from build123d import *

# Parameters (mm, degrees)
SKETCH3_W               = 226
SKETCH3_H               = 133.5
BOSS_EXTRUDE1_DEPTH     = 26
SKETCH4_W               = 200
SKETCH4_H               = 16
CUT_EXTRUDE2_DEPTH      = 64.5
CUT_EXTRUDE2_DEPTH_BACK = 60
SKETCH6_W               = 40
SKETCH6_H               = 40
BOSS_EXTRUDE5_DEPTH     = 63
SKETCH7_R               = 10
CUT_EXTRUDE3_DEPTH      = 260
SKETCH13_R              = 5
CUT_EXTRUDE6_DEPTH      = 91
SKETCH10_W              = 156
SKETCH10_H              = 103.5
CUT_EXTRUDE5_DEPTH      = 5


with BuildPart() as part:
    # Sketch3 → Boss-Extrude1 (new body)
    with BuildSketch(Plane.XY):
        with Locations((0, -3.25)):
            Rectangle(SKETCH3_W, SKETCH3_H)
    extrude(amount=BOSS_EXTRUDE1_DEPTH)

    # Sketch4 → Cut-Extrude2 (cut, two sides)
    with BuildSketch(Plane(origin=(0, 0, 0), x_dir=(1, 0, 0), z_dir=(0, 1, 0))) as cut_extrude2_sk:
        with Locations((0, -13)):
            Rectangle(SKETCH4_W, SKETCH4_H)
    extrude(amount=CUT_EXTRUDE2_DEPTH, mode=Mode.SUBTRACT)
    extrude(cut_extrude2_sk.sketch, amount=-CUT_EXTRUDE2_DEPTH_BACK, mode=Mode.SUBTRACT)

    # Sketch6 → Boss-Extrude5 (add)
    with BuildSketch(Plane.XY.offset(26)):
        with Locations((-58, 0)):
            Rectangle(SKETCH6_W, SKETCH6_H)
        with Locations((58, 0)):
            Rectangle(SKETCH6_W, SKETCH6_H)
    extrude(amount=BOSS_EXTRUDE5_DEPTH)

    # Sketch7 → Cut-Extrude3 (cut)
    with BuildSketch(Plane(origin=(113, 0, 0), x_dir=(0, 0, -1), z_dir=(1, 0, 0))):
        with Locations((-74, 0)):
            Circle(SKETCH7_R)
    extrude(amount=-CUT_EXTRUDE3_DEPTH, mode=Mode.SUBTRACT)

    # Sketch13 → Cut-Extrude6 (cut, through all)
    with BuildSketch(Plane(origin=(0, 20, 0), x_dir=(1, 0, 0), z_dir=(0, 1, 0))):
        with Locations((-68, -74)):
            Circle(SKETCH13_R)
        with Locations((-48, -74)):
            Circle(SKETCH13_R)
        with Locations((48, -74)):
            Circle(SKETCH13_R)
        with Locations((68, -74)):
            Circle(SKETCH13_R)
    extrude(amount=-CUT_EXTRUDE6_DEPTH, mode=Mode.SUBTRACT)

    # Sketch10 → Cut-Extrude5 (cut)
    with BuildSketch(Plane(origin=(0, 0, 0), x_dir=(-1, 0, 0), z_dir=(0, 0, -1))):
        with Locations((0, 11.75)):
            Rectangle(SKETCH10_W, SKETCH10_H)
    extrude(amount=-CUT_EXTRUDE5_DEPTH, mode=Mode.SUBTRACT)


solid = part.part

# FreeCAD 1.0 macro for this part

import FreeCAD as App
import Part
import Sketcher

doc = App.newDocument("Part")
params = doc.addObject("Spreadsheet::Sheet", "Params")
for row, (alias, value) in enumerate([
    ("sketch1_width", "226 mm"),
    ("sketch1_height", "133.5 mm"),
    ("pad1_length", "26 mm"),
    ("sketch2_width", "200 mm"),
    ("sketch2_height", "16 mm"),
    ("pocket1_length", "64.5 mm"),
    ("pocket1_length2", "60 mm"),
    ("sketch3_width", "40 mm"),
    ("pad2_length", "63 mm"),
    ("sketch4_diameter", "20 mm"),
    ("pocket2_length", "260 mm"),
    ("sketch5_diameter", "10 mm"),
    ("sketch6_width", "156 mm"),
    ("sketch6_height", "103.5 mm"),
    ("pocket4_length", "5 mm"),
], start=1):
    params.set(f"A{row}", alias)
    params.set(f"B{row}", "=" + value)
    params.setAlias(f"B{row}", alias)

body = doc.addObject("PartDesign::Body", "Body")

# Sketch on XY plane
sketch1 = doc.addObject("Sketcher::SketchObject", "Sketch")
body.addObject(sketch1)
sketch1.AttachmentSupport = (doc.XY_Plane, [""])
sketch1.MapMode = "FlatFace"
sketch1.addGeometry(Part.LineSegment(App.Vector(-113, 64, 0), App.Vector(-113, -70, 0)), False)
sketch1.addGeometry(Part.LineSegment(App.Vector(-113, -70, 0), App.Vector(113, -70, 0)), False)
sketch1.addGeometry(Part.LineSegment(App.Vector(113, -70, 0), App.Vector(113, 64, 0)), False)
sketch1.addGeometry(Part.LineSegment(App.Vector(113, 64, 0), App.Vector(-113, 64, 0)), False)
sketch1.addConstraint(Sketcher.Constraint("Coincident", 0, 2, 1, 1))
sketch1.addConstraint(Sketcher.Constraint("Coincident", 1, 2, 2, 1))
sketch1.addConstraint(Sketcher.Constraint("Coincident", 2, 2, 3, 1))
sketch1.addConstraint(Sketcher.Constraint("Coincident", 3, 2, 0, 1))
sketch1.addConstraint(Sketcher.Constraint("Vertical", 0))
sketch1.addConstraint(Sketcher.Constraint("Horizontal", 1))
sketch1.addConstraint(Sketcher.Constraint("Vertical", 2))
sketch1.addConstraint(Sketcher.Constraint("Horizontal", 3))
sketch1.addConstraint(Sketcher.Constraint("DistanceX", 1, 1, 1, 2, 226.0))
sketch1.addConstraint(Sketcher.Constraint("DistanceY", 0, 2, 0, 1, 133.5))
sketch1.addConstraint(Sketcher.Constraint("DistanceX", 0, 2, -1, 1, 113.0))
sketch1.addConstraint(Sketcher.Constraint("DistanceY", 0, 2, -1, 1, 70.0))
sketch1.setExpression("Constraints[8]", "Params.sketch1_width")
sketch1.setExpression("Constraints[9]", "Params.sketch1_height")
pad1 = doc.addObject("PartDesign::Pad", "Pad")
body.addObject(pad1)
pad1.Profile = sketch1
pad1.setExpression("Length", "Params.pad1_length")

# Sketch on XZ plane
sketch2 = doc.addObject("Sketcher::SketchObject", "Sketch001")
body.addObject(sketch2)
sketch2.AttachmentSupport = (doc.XZ_Plane, [""])
sketch2.MapMode = "FlatFace"
sketch2.addGeometry(Part.LineSegment(App.Vector(-100, 5, 0), App.Vector(-100, 21, 0)), False)
sketch2.addGeometry(Part.LineSegment(App.Vector(-100, 21, 0), App.Vector(100, 21, 0)), False)
sketch2.addGeometry(Part.LineSegment(App.Vector(100, 21, 0), App.Vector(100, 5, 0)), False)
sketch2.addGeometry(Part.LineSegment(App.Vector(100, 5, 0), App.Vector(-100, 5, 0)), False)
sketch2.addConstraint(Sketcher.Constraint("Coincident", 0, 2, 1, 1))
sketch2.addConstraint(Sketcher.Constraint("Coincident", 1, 2, 2, 1))
sketch2.addConstraint(Sketcher.Constraint("Coincident", 2, 2, 3, 1))
sketch2.addConstraint(Sketcher.Constraint("Coincident", 3, 2, 0, 1))
sketch2.addConstraint(Sketcher.Constraint("Vertical", 0))
sketch2.addConstraint(Sketcher.Constraint("Horizontal", 1))
sketch2.addConstraint(Sketcher.Constraint("Vertical", 2))
sketch2.addConstraint(Sketcher.Constraint("Horizontal", 3))
sketch2.addConstraint(Sketcher.Constraint("DistanceX", 1, 1, 1, 2, 200.0))
sketch2.addConstraint(Sketcher.Constraint("DistanceY", 0, 1, 0, 2, 16.0))
sketch2.addConstraint(Sketcher.Constraint("DistanceX", 0, 2, -1, 1, 100.0))
sketch2.addConstraint(Sketcher.Constraint("DistanceY", -1, 1, 0, 2, 21.0))
sketch2.setExpression("Constraints[8]", "Params.sketch2_width")
sketch2.setExpression("Constraints[9]", "Params.sketch2_height")
pocket1 = doc.addObject("PartDesign::Pocket", "Pocket")
body.addObject(pocket1)
pocket1.Profile = sketch2
pocket1.Type = "TwoLengths"
pocket1.setExpression("Length", "Params.pocket1_length")
pocket1.setExpression("Length2", "Params.pocket1_length2")

# Sketch on XY plane
sketch3 = doc.addObject("Sketcher::SketchObject", "Sketch002")
body.addObject(sketch3)
sketch3.AttachmentSupport = (doc.XY_Plane, [""])
sketch3.MapMode = "FlatFace"
sketch3.AttachmentOffset = App.Placement(App.Vector(0, 0, 26), App.Rotation())
sketch3.addGeometry(Part.LineSegment(App.Vector(-78, 20, 0), App.Vector(-78, -20, 0)), False)
sketch3.addGeometry(Part.LineSegment(App.Vector(-78, -20, 0), App.Vector(-38, -20, 0)), False)
sketch3.addGeometry(Part.LineSegment(App.Vector(-38, -20, 0), App.Vector(-38, 20, 0)), False)
sketch3.addGeometry(Part.LineSegment(App.Vector(-38, 20, 0), App.Vector(-78, 20, 0)), False)
sketch3.addGeometry(Part.LineSegment(App.Vector(38, 20, 0), App.Vector(38, -20, 0)), False)
sketch3.addGeometry(Part.LineSegment(App.Vector(38, -20, 0), App.Vector(78, -20, 0)), False)
sketch3.addGeometry(Part.LineSegment(App.Vector(78, -20, 0), App.Vector(78, 20, 0)), False)
sketch3.addGeometry(Part.LineSegment(App.Vector(78, 20, 0), App.Vector(38, 20, 0)), False)
sketch3.addConstraint(Sketcher.Constraint("Coincident", 0, 2, 1, 1))
sketch3.addConstraint(Sketcher.Constraint("Coincident", 1, 2, 2, 1))
sketch3.addConstraint(Sketcher.Constraint("Coincident", 2, 2, 3, 1))
sketch3.addConstraint(Sketcher.Constraint("Coincident", 3, 2, 0, 1))
sketch3.addConstraint(Sketcher.Constraint("Coincident", 4, 2, 5, 1))
sketch3.addConstraint(Sketcher.Constraint("Coincident", 5, 2, 6, 1))
sketch3.addConstraint(Sketcher.Constraint("Coincident", 6, 2, 7, 1))
sketch3.addConstraint(Sketcher.Constraint("Coincident", 7, 2, 4, 1))
sketch3.addConstraint(Sketcher.Constraint("Vertical", 0))
sketch3.addConstraint(Sketcher.Constraint("Horizontal", 1))
sketch3.addConstraint(Sketcher.Constraint("Vertical", 2))
sketch3.addConstraint(Sketcher.Constraint("Horizontal", 3))
sketch3.addConstraint(Sketcher.Constraint("Vertical", 4))
sketch3.addConstraint(Sketcher.Constraint("Horizontal", 5))
sketch3.addConstraint(Sketcher.Constraint("Vertical", 6))
sketch3.addConstraint(Sketcher.Constraint("Horizontal", 7))
sketch3.addConstraint(Sketcher.Constraint("Symmetric", 2, 2, 4, 2, -1, 1))
sketch3.addConstraint(Sketcher.Constraint("Symmetric", 0, 2, 6, 2, -1, 1))
sketch3.addConstraint(Sketcher.Constraint("Horizontal", 1, 2, 4, 2))
sketch3.addConstraint(Sketcher.Constraint("Equal", 7, 0))
sketch3.addConstraint(Sketcher.Constraint("DistanceX", 1, 1, 1, 2, 40.0))
sketch3.addConstraint(Sketcher.Constraint("DistanceX", 0, 2, -1, 1, 78.0))
sketch3.setExpression("Constraints[20]", "Params.sketch3_width")
pad2 = doc.addObject("PartDesign::Pad", "Pad001")
body.addObject(pad2)
pad2.Profile = sketch3
pad2.setExpression("Length", "Params.pad2_length")

# Sketch on YZ plane
sketch4 = doc.addObject("Sketcher::SketchObject", "Sketch003")
body.addObject(sketch4)
sketch4.AttachmentSupport = (doc.YZ_Plane, [""])
sketch4.MapMode = "FlatFace"
sketch4.AttachmentOffset = App.Placement(App.Vector(0, 0, 113), App.Rotation())
sketch4.addGeometry(Part.Circle(App.Vector(0, 74, 0), App.Vector(0, 0, 1), 10), False)
sketch4.addConstraint(Sketcher.Constraint("PointOnObject", 0, 3, -2))
sketch4.addConstraint(Sketcher.Constraint("Diameter", 0, 20.0))
sketch4.addConstraint(Sketcher.Constraint("DistanceY", -1, 1, 0, 3, 74.0))
sketch4.setExpression("Constraints[1]", "Params.sketch4_diameter")
pocket2 = doc.addObject("PartDesign::Pocket", "Pocket001")
body.addObject(pocket2)
pocket2.Profile = sketch4
pocket2.setExpression("Length", "Params.pocket2_length")

# Sketch on XZ plane
sketch5 = doc.addObject("Sketcher::SketchObject", "Sketch004")
body.addObject(sketch5)
sketch5.AttachmentSupport = (doc.XZ_Plane, [""])
sketch5.MapMode = "FlatFace"
sketch5.AttachmentOffset = App.Placement(App.Vector(0, 0, -20), App.Rotation())
sketch5.addGeometry(Part.Circle(App.Vector(-68, 74, 0), App.Vector(0, 0, 1), 5), False)
sketch5.addGeometry(Part.Circle(App.Vector(-48, 74, 0), App.Vector(0, 0, 1), 5), False)
sketch5.addGeometry(Part.Circle(App.Vector(48, 74, 0), App.Vector(0, 0, 1), 5), False)
sketch5.addGeometry(Part.Circle(App.Vector(68, 74, 0), App.Vector(0, 0, 1), 5), False)
sketch5.addConstraint(Sketcher.Constraint("Equal", 0, 1))
sketch5.addConstraint(Sketcher.Constraint("Equal", 1, 2))
sketch5.addConstraint(Sketcher.Constraint("Equal", 2, 3))
sketch5.addConstraint(Sketcher.Constraint("Symmetric", 1, 3, 2, 3, -2))
sketch5.addConstraint(Sketcher.Constraint("Symmetric", 0, 3, 3, 3, -2))
sketch5.addConstraint(Sketcher.Constraint("Horizontal", 0, 3, 1, 3))
sketch5.addConstraint(Sketcher.Constraint("Diameter", 0, 10.0))
sketch5.addConstraint(Sketcher.Constraint("DistanceX", 0, 3, -1, 1, 68.0))
sketch5.addConstraint(Sketcher.Constraint("DistanceY", -1, 1, 0, 3, 74.0))
sketch5.addConstraint(Sketcher.Constraint("DistanceX", 1, 3, -1, 1, 48.0))
sketch5.setExpression("Constraints[6]", "Params.sketch5_diameter")
pocket3 = doc.addObject("PartDesign::Pocket", "Pocket002")
body.addObject(pocket3)
pocket3.Profile = sketch5
pocket3.Type = "ThroughAll"
pocket3.Reversed = True

# Sketch on XY plane
sketch6 = doc.addObject("Sketcher::SketchObject", "Sketch005")
body.addObject(sketch6)
sketch6.AttachmentSupport = (doc.XY_Plane, [""])
sketch6.MapMode = "FlatFace"
sketch6.addGeometry(Part.LineSegment(App.Vector(78, 64, 0), App.Vector(78, -40, 0)), False)
sketch6.addGeometry(Part.LineSegment(App.Vector(78, -40, 0), App.Vector(-78, -40, 0)), False)
sketch6.addGeometry(Part.LineSegment(App.Vector(-78, -40, 0), App.Vector(-78, 64, 0)), False)
sketch6.addGeometry(Part.LineSegment(App.Vector(-78, 64, 0), App.Vector(78, 64, 0)), False)
sketch6.addConstraint(Sketcher.Constraint("Coincident", 0, 2, 1, 1))
sketch6.addConstraint(Sketcher.Constraint("Coincident", 1, 2, 2, 1))
sketch6.addConstraint(Sketcher.Constraint("Coincident", 2, 2, 3, 1))
sketch6.addConstraint(Sketcher.Constraint("Coincident", 3, 2, 0, 1))
sketch6.addConstraint(Sketcher.Constraint("Vertical", 0))
sketch6.addConstraint(Sketcher.Constraint("Horizontal", 1))
sketch6.addConstraint(Sketcher.Constraint("Vertical", 2))
sketch6.addConstraint(Sketcher.Constraint("Horizontal", 3))
sketch6.addConstraint(Sketcher.Constraint("DistanceX", 1, 2, 1, 1, 156.0))
sketch6.addConstraint(Sketcher.Constraint("DistanceY", 0, 2, 0, 1, 103.5))
sketch6.addConstraint(Sketcher.Constraint("DistanceX", -1, 1, 0, 2, 78.0))
sketch6.addConstraint(Sketcher.Constraint("DistanceY", 0, 2, -1, 1, 40.0))
sketch6.setExpression("Constraints[8]", "Params.sketch6_width")
sketch6.setExpression("Constraints[9]", "Params.sketch6_height")
pocket4 = doc.addObject("PartDesign::Pocket", "Pocket003")
body.addObject(pocket4)
pocket4.Profile = sketch6
pocket4.setExpression("Length", "Params.pocket4_length")
pocket4.Reversed = True

doc.recompute()
